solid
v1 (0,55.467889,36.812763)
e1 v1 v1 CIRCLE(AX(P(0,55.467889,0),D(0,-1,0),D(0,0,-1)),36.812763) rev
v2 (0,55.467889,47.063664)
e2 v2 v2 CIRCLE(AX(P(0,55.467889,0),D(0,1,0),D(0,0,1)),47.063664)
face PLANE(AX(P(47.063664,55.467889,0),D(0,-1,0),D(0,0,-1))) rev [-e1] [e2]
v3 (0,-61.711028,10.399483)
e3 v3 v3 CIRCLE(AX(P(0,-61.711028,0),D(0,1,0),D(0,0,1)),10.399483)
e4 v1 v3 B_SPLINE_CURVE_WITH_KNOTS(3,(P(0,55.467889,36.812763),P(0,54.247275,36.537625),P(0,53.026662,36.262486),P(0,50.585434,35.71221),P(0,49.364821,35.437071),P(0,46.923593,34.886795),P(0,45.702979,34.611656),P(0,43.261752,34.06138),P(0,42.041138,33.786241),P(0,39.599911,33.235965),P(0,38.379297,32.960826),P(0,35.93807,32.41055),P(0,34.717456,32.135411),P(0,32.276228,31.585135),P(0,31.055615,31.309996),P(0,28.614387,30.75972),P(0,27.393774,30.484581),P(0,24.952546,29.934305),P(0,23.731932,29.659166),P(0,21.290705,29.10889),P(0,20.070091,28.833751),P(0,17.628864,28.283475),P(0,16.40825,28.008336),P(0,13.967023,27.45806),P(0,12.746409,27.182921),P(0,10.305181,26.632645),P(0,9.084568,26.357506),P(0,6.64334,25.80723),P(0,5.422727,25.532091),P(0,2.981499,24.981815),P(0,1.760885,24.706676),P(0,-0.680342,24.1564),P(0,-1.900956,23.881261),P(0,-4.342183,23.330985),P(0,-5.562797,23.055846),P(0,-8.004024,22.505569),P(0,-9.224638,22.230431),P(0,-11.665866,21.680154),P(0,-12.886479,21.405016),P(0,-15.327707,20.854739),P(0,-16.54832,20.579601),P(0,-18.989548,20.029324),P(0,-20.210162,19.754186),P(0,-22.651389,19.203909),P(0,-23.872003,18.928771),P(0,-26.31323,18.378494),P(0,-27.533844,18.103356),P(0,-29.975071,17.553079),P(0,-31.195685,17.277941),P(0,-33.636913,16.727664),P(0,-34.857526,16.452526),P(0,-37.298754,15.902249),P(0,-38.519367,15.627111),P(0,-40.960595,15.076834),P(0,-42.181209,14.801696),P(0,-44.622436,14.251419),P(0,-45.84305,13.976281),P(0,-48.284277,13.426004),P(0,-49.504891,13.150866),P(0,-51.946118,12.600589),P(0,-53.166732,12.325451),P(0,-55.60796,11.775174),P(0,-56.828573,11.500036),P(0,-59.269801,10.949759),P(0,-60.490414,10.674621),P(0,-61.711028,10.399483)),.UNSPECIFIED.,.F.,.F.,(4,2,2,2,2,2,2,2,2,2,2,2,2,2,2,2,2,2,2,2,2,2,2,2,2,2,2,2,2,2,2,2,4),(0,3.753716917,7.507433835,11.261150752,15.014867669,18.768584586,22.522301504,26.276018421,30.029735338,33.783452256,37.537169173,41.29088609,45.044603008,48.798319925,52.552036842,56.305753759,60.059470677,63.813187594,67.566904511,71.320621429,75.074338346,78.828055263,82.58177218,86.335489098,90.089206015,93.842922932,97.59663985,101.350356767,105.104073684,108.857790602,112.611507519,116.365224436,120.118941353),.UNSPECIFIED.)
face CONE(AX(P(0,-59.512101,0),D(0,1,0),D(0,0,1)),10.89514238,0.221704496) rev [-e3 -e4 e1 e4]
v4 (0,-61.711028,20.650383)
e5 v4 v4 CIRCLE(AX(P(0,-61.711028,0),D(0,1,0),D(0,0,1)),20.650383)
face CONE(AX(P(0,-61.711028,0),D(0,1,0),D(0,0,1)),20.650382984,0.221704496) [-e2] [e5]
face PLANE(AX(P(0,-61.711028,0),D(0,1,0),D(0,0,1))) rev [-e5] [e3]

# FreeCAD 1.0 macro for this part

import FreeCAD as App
import Part
import Sketcher
from FreeCAD import Vector
Q = App.Units.Quantity


def faces_at(feature, points):
    """Names of the faces that lie closest to the given points."""
    faces = feature.Shape.Faces
    near = lambda p: min(range(len(faces)), key=lambda i: faces[i].distToShape(Part.Vertex(*p))[0])
    return sorted({f"Face{near(p) + 1}" for p in points})

doc = App.newDocument("Part")
body = doc.addObject("PartDesign::Body", "Body")

sketch1 = body.newObject("Sketcher::SketchObject", "Sketch")
sketch1.AttachmentSupport = (doc.getObject("XY_Plane"), [""])
sketch1.MapMode = "FlatFace"
sketch1.addGeometry([
    Part.LineSegment(Vector(0, 55.467889, 0), Vector(0, -61.711028, 0)),
    Part.LineSegment(Vector(0, -61.711028, 0), Vector(20.650383, -61.711028, 0)),
    Part.LineSegment(Vector(20.650383, -61.711028, 0), Vector(47.063664, 55.467889, 0)),
    Part.LineSegment(Vector(47.063664, 55.467889, 0), Vector(0, 55.467889, 0)),
], False)
sketch1.addConstraint([
    Sketcher.Constraint("Coincident", 0, 2, 1, 1),
    Sketcher.Constraint("Coincident", 1, 2, 2, 1),
    Sketcher.Constraint("Coincident", 2, 2, 3, 1),
    Sketcher.Constraint("Coincident", 3, 2, 0, 1),
    Sketcher.Constraint("Vertical", 0),
    Sketcher.Constraint("Horizontal", 1),
    Sketcher.Constraint("Horizontal", 3),
    Sketcher.Constraint("PointOnObject", 0, 2, -2),
    Sketcher.Constraint("Distance", 2, Q("120.118941 mm")),
    Sketcher.Constraint("DistanceX", 1, 1, 1, 2, Q("20.650383 mm")),
    Sketcher.Constraint("DistanceX", 3, 2, 3, 1, Q("47.063664 mm")),
    Sketcher.Constraint("DistanceY", 0, 2, -1, 1, Q("61.711028 mm")),
])
revolution = body.newObject("PartDesign::Revolution", "Revolution")
revolution.Profile = sketch1
revolution.ReferenceAxis = (sketch1, ["V_Axis"])
revolution.Angle = 360
doc.recompute()

thickness = body.newObject("PartDesign::Thickness", "Thickness")
thickness.Base = (revolution, faces_at(revolution, [(0, -61.711, 0), (0, 55.468, 0)]))
thickness.Value = 10
thickness.Reversed = True
thickness.Join = "Intersection"

doc.recompute()
